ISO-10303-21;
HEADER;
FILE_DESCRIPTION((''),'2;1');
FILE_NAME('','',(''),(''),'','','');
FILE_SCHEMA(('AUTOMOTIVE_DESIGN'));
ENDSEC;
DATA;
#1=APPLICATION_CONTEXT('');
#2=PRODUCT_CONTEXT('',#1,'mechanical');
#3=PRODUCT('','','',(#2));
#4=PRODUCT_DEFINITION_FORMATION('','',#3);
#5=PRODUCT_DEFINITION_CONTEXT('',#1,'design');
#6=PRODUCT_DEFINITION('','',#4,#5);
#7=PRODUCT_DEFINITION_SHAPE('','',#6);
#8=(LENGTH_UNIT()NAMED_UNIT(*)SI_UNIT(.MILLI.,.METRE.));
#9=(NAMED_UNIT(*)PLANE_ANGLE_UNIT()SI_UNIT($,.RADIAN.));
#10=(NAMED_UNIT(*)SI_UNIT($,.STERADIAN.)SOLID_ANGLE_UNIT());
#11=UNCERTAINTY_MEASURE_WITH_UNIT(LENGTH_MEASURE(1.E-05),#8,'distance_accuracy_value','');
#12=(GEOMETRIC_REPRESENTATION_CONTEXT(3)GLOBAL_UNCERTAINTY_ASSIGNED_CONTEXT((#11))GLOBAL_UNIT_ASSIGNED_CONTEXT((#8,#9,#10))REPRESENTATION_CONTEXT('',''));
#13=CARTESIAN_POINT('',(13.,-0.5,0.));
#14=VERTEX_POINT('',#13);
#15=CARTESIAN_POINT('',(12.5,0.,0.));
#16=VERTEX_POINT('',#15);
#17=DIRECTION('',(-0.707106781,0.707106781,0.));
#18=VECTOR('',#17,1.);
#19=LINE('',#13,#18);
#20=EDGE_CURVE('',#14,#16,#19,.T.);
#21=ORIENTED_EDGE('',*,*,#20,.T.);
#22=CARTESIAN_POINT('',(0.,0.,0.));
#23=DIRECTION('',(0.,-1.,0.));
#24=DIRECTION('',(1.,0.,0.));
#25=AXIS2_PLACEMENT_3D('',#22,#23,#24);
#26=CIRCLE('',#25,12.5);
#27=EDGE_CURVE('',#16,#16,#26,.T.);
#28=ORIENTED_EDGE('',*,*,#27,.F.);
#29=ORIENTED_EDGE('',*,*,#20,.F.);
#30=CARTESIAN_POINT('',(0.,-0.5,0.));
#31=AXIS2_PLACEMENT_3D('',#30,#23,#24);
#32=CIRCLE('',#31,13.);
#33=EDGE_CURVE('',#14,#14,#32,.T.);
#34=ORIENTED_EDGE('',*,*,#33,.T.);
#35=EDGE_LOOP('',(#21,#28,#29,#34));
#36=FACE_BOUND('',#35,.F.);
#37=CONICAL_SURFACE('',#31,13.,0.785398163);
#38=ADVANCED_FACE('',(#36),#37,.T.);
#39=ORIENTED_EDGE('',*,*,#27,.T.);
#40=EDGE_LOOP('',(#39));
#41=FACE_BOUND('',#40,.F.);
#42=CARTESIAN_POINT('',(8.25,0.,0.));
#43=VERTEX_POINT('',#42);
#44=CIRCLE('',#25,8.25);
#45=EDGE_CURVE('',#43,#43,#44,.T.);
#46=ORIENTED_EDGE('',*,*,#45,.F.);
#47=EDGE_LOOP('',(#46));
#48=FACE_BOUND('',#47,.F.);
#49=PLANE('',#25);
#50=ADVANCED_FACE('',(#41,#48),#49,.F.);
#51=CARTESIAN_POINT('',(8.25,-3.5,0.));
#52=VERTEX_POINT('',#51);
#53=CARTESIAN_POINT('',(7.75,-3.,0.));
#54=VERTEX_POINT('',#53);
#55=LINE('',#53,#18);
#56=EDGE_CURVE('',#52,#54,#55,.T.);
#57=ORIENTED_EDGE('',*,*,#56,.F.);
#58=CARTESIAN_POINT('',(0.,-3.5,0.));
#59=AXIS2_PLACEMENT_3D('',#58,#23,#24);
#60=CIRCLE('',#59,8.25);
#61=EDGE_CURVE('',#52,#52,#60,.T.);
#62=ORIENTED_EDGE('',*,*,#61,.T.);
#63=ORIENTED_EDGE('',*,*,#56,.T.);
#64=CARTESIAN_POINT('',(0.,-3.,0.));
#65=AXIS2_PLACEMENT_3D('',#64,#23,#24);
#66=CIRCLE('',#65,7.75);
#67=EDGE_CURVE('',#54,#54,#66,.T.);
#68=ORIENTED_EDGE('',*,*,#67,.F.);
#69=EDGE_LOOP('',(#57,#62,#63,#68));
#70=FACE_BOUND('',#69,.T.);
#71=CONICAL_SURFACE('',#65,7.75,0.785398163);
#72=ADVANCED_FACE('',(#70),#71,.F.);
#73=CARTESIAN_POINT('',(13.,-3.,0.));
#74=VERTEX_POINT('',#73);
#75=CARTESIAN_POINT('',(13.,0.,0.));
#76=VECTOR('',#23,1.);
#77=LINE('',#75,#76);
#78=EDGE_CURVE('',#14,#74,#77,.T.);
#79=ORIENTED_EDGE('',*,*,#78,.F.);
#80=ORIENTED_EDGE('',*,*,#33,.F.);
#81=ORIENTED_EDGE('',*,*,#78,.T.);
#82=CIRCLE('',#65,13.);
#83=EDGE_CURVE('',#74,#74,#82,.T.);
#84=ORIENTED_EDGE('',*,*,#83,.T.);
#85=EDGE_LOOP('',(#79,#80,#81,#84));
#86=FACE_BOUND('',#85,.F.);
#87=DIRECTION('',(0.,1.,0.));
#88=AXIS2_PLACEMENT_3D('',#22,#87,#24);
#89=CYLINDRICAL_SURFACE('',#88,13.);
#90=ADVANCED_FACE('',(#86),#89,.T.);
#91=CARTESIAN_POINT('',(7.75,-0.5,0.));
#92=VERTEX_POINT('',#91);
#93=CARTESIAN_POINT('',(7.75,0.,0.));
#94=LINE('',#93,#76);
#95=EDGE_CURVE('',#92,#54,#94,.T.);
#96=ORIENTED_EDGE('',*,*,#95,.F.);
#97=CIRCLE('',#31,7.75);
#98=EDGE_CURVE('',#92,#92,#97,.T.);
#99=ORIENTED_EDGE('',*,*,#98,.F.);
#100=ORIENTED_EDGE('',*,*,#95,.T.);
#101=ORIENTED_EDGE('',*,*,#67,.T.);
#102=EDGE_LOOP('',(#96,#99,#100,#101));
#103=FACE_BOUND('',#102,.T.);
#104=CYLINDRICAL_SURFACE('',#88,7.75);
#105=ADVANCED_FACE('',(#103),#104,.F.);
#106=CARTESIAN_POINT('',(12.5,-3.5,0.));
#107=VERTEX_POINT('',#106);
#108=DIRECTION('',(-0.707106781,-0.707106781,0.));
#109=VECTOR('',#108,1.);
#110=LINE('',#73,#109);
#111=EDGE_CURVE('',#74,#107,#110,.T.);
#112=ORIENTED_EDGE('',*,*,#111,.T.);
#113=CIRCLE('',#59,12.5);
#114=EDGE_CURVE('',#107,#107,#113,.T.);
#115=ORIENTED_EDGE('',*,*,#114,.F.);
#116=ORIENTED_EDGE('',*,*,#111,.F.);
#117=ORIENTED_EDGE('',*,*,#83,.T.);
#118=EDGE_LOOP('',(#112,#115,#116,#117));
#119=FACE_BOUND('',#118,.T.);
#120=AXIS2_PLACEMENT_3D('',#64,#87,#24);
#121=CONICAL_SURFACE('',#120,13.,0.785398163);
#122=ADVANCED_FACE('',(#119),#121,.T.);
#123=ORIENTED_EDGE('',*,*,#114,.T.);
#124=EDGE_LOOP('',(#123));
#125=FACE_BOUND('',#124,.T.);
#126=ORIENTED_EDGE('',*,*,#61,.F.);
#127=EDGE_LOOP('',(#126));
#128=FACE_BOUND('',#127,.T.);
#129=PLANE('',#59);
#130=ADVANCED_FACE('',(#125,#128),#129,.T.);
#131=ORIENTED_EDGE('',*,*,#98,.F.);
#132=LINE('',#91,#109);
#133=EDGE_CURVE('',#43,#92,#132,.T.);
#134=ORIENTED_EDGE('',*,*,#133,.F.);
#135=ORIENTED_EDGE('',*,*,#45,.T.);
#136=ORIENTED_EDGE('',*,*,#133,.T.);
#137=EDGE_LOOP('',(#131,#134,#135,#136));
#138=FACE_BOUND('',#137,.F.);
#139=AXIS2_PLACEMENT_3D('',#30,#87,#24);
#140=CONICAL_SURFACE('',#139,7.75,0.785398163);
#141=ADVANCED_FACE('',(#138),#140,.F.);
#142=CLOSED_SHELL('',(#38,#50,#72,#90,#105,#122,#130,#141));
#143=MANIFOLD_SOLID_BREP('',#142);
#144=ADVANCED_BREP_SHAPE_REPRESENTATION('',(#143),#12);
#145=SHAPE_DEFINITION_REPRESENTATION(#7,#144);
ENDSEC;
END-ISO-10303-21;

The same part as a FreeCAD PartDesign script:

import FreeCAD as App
import Part
import Sketcher

V = App.Vector


def edges_at(feature, points):
    """Names of the edges that pass closest to the given points."""
    edges = feature.Shape.Edges
    near = lambda p: min(range(len(edges)), key=lambda i: edges[i].distToShape(Part.Vertex(*p))[0])
    return sorted({f"Edge{near(p) + 1}" for p in points})

doc = App.newDocument("Part")
params = doc.addObject("Spreadsheet::Sheet", "Params")
for row, (alias, value) in enumerate([
    ("sketch1_diameter", "26 mm"),
    ("sketch1_diameter2", "15.5 mm"),
    ("pad1_length", "3.5 mm"),
    ("chamfer_size", "0.5 mm"),
    ("chamfer_size2", "0.5 mm"),
    ("chamfer2_size", "0.5 mm"),
], start=1):
    params.set(f"A{row}", alias)
    params.set(f"B{row}", "=" + value)
    params.setAlias(f"B{row}", alias)

body = doc.addObject("PartDesign::Body", "Body")

# Sketch on XZ plane
sketch1 = body.newObject("Sketcher::SketchObject", "Sketch")
sketch1.AttachmentSupport = (doc.getObject("XZ_Plane"), [""])
sketch1.MapMode = "FlatFace"
sketch1.addGeometry(Part.Circle(V(0, 0, 0), V(0, 0, 1), 13), False)
sketch1.addGeometry(Part.Circle(V(0, 0, 0), V(0, 0, 1), 7.75), False)
sketch1.addConstraint(Sketcher.Constraint("Coincident", 0, 3, -1, 1))
sketch1.addConstraint(Sketcher.Constraint("Coincident", 1, 3, -1, 1))
sketch1.addConstraint(Sketcher.Constraint("Diameter", 0, 26.0))
sketch1.addConstraint(Sketcher.Constraint("Diameter", 1, 15.5))
sketch1.setExpression("Constraints[2]", "Params.sketch1_diameter")
sketch1.setExpression("Constraints[3]", "Params.sketch1_diameter2")
pad1 = body.newObject("PartDesign::Pad", "Pad")
pad1.Profile = sketch1
pad1.setExpression("Length", "Params.pad1_length")
doc.recompute()

chamfer = body.newObject("PartDesign::Chamfer", "Chamfer")
chamfer.Base = (pad1, edges_at(pad1, [(-13, -3.5, 0), (-13, 0, 0)]))
chamfer.ChamferType = "Two distances"
chamfer.setExpression("Size", "Params.chamfer_size")
chamfer.setExpression("Size2", "Params.chamfer_size2")
doc.recompute()

chamfer2 = body.newObject("PartDesign::Chamfer", "Chamfer001")
chamfer2.Base = (chamfer, edges_at(chamfer, [(-7.75, 0, 0), (-7.75, -3.5, 0)]))
chamfer2.setExpression("Size", "Params.chamfer2_size")

doc.recompute()
